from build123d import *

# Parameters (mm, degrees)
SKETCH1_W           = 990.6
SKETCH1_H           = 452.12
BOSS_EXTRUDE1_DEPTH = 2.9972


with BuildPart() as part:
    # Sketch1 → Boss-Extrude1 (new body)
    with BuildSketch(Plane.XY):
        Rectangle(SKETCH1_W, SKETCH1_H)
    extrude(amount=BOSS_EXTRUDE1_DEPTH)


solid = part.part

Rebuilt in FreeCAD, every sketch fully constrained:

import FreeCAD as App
import Part
import Sketcher
from FreeCAD import Vector
Q = App.Units.Quantity


def add_polygon(sketch, points):
    """Adds a closed chain of lines whose ends are joined by coincident constraints."""
    first, n = sketch.GeometryCount, len(points)
    for a, b in zip(points, points[1:] + points[:1]):
        sketch.addGeometry(Part.LineSegment(App.Vector(*a, 0), App.Vector(*b, 0)), False)
    for i in range(n):
        sketch.addConstraint(Sketcher.Constraint("Coincident", first + i, 2, first + (i + 1) % n, 1))

doc = App.newDocument("Part")
body = doc.addObject("PartDesign::Body", "Body")

# Sketch on XY plane
sketch1 = body.newObject("Sketcher::SketchObject", "Sketch")
sketch1.AttachmentSupport = (doc.getObject("XY_Plane"), [""])
sketch1.MapMode = "FlatFace"
add_polygon(sketch1, [(-495.3, 226.06), (-495.3, -226.06), (495.3, -226.06), (495.3, 226.06)])  # lines 0-3
sketch1.addConstraint(Sketcher.Constraint("Vertical", 0))
sketch1.addConstraint(Sketcher.Constraint("Horizontal", 1))
sketch1.addConstraint(Sketcher.Constraint("Vertical", 2))
sketch1.addConstraint(Sketcher.Constraint("Horizontal", 3))
sketch1.addConstraint(Sketcher.Constraint("Symmetric", 0, 2, 2, 2, -1, 1))
sketch1.addConstraint(Sketcher.Constraint("DistanceX", 1, 1, 1, 2, Q("39 in")))
sketch1.addConstraint(Sketcher.Constraint("DistanceY", 0, 2, 0, 1, Q("17.8 in")))
pad1 = body.newObject("PartDesign::Pad", "Pad")
pad1.Profile = sketch1
pad1.Length = Q("0.118 in")

doc.recompute()
